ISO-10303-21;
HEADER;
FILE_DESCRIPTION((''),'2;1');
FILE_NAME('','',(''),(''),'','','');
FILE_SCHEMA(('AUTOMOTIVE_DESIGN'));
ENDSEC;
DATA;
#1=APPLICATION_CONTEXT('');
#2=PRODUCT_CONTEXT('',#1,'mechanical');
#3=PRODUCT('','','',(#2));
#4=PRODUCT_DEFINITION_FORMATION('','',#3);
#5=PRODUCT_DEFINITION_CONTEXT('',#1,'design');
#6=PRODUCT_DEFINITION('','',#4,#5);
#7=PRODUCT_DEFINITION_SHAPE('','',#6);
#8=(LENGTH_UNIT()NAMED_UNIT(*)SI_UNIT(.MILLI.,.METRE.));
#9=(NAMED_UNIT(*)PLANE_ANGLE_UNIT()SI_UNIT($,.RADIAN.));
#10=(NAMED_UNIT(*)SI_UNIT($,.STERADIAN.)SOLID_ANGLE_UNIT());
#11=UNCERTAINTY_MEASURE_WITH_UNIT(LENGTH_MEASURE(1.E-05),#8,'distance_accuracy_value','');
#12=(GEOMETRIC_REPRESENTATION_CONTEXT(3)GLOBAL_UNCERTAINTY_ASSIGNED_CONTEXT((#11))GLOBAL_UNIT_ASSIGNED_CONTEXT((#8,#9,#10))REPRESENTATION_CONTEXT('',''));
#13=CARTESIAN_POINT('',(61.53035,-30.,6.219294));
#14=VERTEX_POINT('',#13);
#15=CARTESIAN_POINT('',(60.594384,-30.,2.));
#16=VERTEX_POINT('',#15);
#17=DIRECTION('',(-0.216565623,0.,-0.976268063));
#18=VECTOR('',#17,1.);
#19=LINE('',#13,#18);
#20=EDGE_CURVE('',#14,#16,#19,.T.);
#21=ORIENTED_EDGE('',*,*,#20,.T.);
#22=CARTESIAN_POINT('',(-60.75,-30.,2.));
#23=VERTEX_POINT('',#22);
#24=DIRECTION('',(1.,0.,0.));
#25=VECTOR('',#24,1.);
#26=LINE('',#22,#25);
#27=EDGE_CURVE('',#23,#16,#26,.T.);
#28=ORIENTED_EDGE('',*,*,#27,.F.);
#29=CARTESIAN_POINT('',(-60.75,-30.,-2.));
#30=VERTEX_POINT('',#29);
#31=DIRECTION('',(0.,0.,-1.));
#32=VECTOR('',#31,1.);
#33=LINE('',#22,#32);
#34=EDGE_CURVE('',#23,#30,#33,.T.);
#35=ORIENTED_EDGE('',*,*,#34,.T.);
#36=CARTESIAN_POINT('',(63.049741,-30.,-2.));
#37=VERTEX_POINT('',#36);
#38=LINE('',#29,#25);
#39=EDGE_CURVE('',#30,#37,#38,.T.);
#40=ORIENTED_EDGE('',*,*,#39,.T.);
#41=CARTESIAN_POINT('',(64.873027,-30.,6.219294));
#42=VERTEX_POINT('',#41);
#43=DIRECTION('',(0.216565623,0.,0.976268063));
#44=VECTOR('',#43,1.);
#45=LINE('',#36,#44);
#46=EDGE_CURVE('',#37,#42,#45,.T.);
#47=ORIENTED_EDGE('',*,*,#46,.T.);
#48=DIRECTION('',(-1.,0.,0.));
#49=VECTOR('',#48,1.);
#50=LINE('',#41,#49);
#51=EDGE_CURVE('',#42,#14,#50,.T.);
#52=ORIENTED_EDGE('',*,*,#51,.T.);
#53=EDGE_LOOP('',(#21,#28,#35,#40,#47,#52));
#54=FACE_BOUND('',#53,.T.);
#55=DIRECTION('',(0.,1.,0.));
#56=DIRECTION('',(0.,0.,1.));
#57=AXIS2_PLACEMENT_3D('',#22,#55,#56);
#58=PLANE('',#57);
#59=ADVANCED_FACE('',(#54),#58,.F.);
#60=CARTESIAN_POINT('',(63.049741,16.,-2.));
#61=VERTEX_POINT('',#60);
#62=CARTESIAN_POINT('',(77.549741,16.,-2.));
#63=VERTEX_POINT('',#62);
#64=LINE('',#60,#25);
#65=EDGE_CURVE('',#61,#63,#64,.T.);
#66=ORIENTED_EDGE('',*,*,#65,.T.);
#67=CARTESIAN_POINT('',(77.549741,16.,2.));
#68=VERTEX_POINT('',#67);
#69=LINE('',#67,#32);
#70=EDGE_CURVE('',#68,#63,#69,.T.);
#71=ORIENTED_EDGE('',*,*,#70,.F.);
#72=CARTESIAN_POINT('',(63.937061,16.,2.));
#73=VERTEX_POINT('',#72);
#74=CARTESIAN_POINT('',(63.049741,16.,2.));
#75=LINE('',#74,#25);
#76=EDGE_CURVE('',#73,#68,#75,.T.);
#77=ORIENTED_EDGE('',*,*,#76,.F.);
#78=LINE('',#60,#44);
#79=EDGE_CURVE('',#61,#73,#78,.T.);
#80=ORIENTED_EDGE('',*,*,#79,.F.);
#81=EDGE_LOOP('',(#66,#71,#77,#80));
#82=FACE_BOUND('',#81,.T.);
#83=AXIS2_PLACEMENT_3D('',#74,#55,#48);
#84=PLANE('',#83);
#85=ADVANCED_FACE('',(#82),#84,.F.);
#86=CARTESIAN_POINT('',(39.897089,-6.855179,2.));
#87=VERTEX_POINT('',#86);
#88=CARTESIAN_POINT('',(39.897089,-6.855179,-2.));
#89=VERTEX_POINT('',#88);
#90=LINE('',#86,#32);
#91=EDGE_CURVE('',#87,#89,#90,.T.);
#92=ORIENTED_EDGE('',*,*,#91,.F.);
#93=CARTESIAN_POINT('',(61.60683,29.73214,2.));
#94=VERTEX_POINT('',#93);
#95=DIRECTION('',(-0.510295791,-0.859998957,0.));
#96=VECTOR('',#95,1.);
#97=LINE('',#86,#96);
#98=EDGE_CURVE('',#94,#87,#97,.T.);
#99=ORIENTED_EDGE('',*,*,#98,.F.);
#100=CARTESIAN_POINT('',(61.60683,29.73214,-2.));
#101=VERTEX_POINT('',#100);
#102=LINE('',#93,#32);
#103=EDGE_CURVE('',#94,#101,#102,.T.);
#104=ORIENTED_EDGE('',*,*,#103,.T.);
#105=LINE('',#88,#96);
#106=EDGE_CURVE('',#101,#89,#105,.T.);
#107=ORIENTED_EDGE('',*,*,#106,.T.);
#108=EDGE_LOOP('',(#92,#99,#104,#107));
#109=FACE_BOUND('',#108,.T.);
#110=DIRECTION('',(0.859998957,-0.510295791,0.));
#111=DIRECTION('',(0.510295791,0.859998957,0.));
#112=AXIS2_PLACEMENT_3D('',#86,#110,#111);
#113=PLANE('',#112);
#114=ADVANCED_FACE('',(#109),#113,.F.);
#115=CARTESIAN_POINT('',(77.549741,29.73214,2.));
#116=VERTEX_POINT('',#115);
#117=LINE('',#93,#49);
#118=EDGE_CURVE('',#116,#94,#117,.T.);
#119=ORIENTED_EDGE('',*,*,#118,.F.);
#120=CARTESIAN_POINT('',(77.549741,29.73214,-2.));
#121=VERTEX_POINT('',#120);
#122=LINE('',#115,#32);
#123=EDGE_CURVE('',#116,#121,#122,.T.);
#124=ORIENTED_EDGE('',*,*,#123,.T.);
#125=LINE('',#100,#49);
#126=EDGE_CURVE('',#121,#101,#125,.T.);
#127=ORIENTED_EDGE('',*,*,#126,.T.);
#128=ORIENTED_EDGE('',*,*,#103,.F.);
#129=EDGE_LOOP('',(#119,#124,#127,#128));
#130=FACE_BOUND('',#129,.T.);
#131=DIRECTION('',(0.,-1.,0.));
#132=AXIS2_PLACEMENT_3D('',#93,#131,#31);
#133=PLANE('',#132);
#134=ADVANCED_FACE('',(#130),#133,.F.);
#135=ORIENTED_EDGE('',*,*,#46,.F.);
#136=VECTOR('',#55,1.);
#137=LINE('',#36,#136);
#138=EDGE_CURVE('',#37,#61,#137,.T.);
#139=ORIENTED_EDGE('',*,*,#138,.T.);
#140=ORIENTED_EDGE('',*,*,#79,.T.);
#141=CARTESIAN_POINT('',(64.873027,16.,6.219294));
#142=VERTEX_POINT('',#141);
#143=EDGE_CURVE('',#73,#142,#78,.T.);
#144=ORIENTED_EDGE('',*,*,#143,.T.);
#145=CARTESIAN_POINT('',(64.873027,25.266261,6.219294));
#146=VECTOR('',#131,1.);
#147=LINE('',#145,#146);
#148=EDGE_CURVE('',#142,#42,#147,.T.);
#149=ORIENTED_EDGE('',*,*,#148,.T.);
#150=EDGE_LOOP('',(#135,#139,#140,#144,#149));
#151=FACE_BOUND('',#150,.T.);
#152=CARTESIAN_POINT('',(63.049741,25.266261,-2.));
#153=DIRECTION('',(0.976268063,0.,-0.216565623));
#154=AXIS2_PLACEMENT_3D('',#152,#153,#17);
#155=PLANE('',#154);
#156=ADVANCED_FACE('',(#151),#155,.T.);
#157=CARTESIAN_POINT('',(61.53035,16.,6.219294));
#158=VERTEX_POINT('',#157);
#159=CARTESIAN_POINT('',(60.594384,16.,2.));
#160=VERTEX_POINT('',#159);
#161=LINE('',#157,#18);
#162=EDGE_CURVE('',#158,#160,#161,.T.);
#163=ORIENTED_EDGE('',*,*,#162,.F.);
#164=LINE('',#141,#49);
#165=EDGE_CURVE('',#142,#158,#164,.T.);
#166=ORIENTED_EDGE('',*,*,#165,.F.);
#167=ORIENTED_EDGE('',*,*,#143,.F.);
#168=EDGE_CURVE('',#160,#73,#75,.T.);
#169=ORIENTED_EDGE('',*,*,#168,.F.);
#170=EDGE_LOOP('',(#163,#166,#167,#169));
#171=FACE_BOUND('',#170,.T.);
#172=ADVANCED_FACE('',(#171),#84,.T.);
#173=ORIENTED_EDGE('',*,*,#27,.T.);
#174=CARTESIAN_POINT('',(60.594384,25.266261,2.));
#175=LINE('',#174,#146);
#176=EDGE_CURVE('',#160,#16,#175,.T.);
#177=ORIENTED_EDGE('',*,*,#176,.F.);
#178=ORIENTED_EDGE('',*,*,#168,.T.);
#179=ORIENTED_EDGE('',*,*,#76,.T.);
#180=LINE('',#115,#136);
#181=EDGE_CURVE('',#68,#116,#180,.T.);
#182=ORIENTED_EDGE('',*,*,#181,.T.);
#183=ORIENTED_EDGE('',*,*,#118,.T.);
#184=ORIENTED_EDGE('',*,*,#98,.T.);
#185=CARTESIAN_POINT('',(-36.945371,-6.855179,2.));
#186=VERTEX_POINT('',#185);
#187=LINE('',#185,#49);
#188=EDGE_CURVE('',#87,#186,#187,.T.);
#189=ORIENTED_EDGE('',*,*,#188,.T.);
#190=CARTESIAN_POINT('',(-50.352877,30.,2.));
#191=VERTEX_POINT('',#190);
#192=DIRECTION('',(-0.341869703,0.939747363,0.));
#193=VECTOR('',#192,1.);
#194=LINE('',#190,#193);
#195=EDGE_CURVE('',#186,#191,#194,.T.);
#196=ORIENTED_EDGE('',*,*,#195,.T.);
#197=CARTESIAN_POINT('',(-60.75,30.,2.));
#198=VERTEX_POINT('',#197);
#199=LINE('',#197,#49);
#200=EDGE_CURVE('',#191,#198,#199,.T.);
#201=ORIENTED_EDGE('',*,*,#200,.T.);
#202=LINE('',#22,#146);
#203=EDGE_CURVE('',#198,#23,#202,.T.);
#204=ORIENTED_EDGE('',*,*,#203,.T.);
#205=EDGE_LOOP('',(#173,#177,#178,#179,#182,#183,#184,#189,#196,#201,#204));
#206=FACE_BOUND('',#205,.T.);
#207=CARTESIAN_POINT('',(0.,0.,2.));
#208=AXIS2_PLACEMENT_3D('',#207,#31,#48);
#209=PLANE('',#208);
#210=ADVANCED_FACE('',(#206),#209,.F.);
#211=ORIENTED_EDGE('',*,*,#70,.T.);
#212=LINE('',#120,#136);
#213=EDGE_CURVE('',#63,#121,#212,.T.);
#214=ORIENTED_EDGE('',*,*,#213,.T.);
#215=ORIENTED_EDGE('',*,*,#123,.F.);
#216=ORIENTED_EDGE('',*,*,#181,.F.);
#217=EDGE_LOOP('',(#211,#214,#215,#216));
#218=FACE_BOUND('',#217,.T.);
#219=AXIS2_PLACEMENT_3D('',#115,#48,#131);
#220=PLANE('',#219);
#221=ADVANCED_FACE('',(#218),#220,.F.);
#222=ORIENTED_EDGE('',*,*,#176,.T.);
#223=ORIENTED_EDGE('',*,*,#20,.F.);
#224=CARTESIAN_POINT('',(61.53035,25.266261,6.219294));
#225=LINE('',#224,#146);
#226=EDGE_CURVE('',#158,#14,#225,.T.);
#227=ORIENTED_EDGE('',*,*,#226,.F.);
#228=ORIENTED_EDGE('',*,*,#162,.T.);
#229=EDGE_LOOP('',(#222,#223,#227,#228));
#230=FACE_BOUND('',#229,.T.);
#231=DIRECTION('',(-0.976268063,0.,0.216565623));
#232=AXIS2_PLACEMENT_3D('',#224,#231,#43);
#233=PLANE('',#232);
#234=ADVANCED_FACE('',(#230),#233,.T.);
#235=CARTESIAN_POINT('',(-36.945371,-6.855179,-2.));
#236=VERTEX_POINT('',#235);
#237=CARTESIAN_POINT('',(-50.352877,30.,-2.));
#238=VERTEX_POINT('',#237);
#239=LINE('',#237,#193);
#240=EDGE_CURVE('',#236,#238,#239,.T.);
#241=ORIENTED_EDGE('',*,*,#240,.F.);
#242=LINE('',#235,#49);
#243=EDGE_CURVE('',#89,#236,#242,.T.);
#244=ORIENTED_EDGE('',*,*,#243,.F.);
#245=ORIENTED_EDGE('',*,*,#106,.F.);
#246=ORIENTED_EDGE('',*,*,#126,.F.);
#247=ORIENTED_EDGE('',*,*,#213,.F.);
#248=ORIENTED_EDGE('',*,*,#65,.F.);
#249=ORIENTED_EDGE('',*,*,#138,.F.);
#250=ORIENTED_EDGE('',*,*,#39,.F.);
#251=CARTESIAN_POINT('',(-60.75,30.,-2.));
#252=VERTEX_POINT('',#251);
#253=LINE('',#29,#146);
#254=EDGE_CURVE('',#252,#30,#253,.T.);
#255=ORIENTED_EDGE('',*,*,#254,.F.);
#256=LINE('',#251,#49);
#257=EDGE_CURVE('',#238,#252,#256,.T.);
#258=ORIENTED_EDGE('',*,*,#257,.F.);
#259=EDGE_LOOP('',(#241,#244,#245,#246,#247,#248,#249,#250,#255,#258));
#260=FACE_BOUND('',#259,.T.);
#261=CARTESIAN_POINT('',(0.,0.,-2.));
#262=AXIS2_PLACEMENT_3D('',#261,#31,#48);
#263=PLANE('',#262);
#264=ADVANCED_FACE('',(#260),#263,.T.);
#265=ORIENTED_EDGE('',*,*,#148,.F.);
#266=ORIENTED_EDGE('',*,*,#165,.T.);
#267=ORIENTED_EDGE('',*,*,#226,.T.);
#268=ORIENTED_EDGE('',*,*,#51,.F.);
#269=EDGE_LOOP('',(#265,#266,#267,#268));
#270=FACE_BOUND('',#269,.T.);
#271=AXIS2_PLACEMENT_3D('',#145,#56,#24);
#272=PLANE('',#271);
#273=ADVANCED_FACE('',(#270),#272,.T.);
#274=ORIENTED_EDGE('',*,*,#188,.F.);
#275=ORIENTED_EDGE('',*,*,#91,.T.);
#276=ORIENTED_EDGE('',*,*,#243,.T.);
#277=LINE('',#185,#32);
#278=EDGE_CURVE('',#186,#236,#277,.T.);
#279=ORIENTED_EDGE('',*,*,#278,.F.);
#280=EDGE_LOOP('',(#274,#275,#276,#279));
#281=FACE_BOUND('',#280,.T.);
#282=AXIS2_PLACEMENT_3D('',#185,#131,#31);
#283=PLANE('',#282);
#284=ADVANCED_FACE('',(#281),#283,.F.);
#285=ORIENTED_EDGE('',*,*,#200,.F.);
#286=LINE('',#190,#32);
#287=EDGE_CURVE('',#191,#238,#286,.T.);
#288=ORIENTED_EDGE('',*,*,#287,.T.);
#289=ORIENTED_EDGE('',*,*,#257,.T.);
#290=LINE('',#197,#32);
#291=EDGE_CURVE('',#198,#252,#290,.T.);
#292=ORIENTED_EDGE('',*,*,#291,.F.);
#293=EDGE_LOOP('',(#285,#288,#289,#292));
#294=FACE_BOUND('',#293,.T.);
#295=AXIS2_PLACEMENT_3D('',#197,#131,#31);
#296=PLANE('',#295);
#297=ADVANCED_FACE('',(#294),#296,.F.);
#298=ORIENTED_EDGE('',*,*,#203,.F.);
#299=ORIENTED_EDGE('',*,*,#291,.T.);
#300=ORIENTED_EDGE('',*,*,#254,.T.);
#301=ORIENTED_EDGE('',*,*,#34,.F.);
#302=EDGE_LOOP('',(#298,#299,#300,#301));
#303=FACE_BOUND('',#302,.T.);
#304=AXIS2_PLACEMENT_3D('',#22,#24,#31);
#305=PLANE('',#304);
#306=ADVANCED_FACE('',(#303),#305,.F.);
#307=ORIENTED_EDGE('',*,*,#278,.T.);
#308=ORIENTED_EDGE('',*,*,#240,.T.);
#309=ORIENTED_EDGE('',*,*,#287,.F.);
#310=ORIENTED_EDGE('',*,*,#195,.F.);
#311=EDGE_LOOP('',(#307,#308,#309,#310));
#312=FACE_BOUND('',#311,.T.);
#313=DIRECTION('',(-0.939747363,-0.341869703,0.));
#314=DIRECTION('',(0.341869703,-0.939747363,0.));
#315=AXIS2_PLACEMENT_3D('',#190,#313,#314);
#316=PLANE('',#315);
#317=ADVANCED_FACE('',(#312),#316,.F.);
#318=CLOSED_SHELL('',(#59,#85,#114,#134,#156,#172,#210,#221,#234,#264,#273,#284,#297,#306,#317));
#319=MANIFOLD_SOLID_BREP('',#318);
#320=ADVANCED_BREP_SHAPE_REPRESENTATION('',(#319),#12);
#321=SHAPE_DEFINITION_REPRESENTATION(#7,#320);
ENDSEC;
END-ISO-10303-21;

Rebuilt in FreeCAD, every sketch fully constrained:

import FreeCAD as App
import Part
import Sketcher
Q = App.Units.Quantity


def add_polygon(sketch, points):
    """Adds a closed chain of lines whose ends are joined by coincident constraints."""
    first, n = sketch.GeometryCount, len(points)
    for a, b in zip(points, points[1:] + points[:1]):
        sketch.addGeometry(Part.LineSegment(App.Vector(*a, 0), App.Vector(*b, 0)), False)
    for i in range(n):
        sketch.addConstraint(Sketcher.Constraint("Coincident", first + i, 2, first + (i + 1) % n, 1))

doc = App.newDocument("Part")
params = doc.addObject("Spreadsheet::Sheet", "Params")
for row, (alias, value) in enumerate([
    ("sketch1_height", "60 mm"),
    ("sketch1_height2", "46 mm"),
    ("sketch1_width", "14.5 mm"),
    ("pad1_length", "4 mm"),
    ("pad2_length", "46 mm"),
], start=1):
    params.set(f"A{row}", alias)
    params.set(f"B{row}", "=" + value)
    params.setAlias(f"B{row}", alias)

body = doc.addObject("PartDesign::Body", "Body")

# Sketch on XY plane
sketch1 = body.newObject("Sketcher::SketchObject", "Sketch")
sketch1.AttachmentSupport = (doc.getObject("XY_Plane"), [""])
sketch1.MapMode = "FlatFace"
add_polygon(sketch1, [(-61, 30), (-61, -30), (63, -30), (63, 16), (78, 16), (78, 30), (62, 30), (40, -7), (-37, -7), (-50, 30)])  # lines 0-9
sketch1.addConstraint([
    Sketcher.Constraint("Vertical", 0),
    Sketcher.Constraint("Horizontal", 1),
    Sketcher.Constraint("Vertical", 2),
    Sketcher.Constraint("Horizontal", 3),
    Sketcher.Constraint("Vertical", 4),
    Sketcher.Constraint("Horizontal", 5),
    Sketcher.Constraint("Horizontal", 7),
    Sketcher.Constraint("Horizontal", 9),
    Sketcher.Constraint("DistanceY", 0, 2, 0, 1, Q("60 mm")),
    Sketcher.Constraint("DistanceY", 2, 1, 2, 2, Q("46 mm")),
    Sketcher.Constraint("DistanceX", 3, 1, 3, 2, Q("14.5 mm")),
    Sketcher.Constraint("DistanceY", 0, 2, -1, 1, Q("30 mm")),
    Sketcher.Constraint("DistanceX", 0, 2, -1, 1, Q("60.75 mm")),
    Sketcher.Constraint("DistanceX", 1, 1, 1, 2, Q("123.799741 mm")),
    Sketcher.Constraint("DistanceX", 5, 2, 5, 1, Q("15.94291 mm")),
    Sketcher.Constraint("DistanceX", 7, 2, 7, 1, Q("76.842459 mm")),
    Sketcher.Constraint("DistanceY", 4, 1, 4, 2, Q("13.73214 mm")),
    Sketcher.Constraint("DistanceX", 7, 2, 5, 2, Q("98.552201 mm")),
    Sketcher.Constraint("Distance", 8, Q("39.218178 mm")),
    Sketcher.Constraint("DistanceX", 9, 2, 9, 1, Q("10.397123 mm")),
])
sketch1.setExpression("Constraints[18]", "Params.sketch1_height")
sketch1.setExpression("Constraints[19]", "Params.sketch1_height2")
sketch1.setExpression("Constraints[20]", "Params.sketch1_width")
pad1 = body.newObject("PartDesign::Pad", "Pad")
pad1.Profile = sketch1
pad1.setExpression("Length", "Params.pad1_length")
pad1.Midplane = True

# Sketch on XZ plane
sketch2 = body.newObject("Sketcher::SketchObject", "Sketch001")
sketch2.AttachmentSupport = (doc.getObject("XZ_Plane"), [""])
sketch2.MapMode = "FlatFace"
sketch2.AttachmentOffset = App.Placement(App.Vector(0, 0, 30), App.Rotation())
add_polygon(sketch2, [(63, -2), (64.9, 6.2), (61.5, 6.2), (60.6, 2)])  # lines 0-3
sketch2.addConstraint([
    Sketcher.Constraint("Horizontal", 1),
    Sketcher.Constraint("Parallel", 0, 2),
    Sketcher.Constraint("DistanceY", -1, 1, 2, 2, Q("2 mm")),
    Sketcher.Constraint("DistanceY", 3, 2, -1, 1, Q("2 mm")),
    Sketcher.Constraint("Distance", 2, Q("4.32186 mm")),
    Sketcher.Constraint("DistanceX", 1, 2, 1, 1, Q("3.342677 mm")),
    Sketcher.Constraint("DistanceX", -1, 1, 1, 2, Q("61.53035 mm")),
    Sketcher.Constraint("DistanceX", -1, 1, 3, 2, Q("63.049741 mm")),
])
pad2 = body.newObject("PartDesign::Pad", "Pad001")
pad2.Profile = sketch2
pad2.setExpression("Length", "Params.pad2_length")
pad2.Reversed = True

doc.recompute()
